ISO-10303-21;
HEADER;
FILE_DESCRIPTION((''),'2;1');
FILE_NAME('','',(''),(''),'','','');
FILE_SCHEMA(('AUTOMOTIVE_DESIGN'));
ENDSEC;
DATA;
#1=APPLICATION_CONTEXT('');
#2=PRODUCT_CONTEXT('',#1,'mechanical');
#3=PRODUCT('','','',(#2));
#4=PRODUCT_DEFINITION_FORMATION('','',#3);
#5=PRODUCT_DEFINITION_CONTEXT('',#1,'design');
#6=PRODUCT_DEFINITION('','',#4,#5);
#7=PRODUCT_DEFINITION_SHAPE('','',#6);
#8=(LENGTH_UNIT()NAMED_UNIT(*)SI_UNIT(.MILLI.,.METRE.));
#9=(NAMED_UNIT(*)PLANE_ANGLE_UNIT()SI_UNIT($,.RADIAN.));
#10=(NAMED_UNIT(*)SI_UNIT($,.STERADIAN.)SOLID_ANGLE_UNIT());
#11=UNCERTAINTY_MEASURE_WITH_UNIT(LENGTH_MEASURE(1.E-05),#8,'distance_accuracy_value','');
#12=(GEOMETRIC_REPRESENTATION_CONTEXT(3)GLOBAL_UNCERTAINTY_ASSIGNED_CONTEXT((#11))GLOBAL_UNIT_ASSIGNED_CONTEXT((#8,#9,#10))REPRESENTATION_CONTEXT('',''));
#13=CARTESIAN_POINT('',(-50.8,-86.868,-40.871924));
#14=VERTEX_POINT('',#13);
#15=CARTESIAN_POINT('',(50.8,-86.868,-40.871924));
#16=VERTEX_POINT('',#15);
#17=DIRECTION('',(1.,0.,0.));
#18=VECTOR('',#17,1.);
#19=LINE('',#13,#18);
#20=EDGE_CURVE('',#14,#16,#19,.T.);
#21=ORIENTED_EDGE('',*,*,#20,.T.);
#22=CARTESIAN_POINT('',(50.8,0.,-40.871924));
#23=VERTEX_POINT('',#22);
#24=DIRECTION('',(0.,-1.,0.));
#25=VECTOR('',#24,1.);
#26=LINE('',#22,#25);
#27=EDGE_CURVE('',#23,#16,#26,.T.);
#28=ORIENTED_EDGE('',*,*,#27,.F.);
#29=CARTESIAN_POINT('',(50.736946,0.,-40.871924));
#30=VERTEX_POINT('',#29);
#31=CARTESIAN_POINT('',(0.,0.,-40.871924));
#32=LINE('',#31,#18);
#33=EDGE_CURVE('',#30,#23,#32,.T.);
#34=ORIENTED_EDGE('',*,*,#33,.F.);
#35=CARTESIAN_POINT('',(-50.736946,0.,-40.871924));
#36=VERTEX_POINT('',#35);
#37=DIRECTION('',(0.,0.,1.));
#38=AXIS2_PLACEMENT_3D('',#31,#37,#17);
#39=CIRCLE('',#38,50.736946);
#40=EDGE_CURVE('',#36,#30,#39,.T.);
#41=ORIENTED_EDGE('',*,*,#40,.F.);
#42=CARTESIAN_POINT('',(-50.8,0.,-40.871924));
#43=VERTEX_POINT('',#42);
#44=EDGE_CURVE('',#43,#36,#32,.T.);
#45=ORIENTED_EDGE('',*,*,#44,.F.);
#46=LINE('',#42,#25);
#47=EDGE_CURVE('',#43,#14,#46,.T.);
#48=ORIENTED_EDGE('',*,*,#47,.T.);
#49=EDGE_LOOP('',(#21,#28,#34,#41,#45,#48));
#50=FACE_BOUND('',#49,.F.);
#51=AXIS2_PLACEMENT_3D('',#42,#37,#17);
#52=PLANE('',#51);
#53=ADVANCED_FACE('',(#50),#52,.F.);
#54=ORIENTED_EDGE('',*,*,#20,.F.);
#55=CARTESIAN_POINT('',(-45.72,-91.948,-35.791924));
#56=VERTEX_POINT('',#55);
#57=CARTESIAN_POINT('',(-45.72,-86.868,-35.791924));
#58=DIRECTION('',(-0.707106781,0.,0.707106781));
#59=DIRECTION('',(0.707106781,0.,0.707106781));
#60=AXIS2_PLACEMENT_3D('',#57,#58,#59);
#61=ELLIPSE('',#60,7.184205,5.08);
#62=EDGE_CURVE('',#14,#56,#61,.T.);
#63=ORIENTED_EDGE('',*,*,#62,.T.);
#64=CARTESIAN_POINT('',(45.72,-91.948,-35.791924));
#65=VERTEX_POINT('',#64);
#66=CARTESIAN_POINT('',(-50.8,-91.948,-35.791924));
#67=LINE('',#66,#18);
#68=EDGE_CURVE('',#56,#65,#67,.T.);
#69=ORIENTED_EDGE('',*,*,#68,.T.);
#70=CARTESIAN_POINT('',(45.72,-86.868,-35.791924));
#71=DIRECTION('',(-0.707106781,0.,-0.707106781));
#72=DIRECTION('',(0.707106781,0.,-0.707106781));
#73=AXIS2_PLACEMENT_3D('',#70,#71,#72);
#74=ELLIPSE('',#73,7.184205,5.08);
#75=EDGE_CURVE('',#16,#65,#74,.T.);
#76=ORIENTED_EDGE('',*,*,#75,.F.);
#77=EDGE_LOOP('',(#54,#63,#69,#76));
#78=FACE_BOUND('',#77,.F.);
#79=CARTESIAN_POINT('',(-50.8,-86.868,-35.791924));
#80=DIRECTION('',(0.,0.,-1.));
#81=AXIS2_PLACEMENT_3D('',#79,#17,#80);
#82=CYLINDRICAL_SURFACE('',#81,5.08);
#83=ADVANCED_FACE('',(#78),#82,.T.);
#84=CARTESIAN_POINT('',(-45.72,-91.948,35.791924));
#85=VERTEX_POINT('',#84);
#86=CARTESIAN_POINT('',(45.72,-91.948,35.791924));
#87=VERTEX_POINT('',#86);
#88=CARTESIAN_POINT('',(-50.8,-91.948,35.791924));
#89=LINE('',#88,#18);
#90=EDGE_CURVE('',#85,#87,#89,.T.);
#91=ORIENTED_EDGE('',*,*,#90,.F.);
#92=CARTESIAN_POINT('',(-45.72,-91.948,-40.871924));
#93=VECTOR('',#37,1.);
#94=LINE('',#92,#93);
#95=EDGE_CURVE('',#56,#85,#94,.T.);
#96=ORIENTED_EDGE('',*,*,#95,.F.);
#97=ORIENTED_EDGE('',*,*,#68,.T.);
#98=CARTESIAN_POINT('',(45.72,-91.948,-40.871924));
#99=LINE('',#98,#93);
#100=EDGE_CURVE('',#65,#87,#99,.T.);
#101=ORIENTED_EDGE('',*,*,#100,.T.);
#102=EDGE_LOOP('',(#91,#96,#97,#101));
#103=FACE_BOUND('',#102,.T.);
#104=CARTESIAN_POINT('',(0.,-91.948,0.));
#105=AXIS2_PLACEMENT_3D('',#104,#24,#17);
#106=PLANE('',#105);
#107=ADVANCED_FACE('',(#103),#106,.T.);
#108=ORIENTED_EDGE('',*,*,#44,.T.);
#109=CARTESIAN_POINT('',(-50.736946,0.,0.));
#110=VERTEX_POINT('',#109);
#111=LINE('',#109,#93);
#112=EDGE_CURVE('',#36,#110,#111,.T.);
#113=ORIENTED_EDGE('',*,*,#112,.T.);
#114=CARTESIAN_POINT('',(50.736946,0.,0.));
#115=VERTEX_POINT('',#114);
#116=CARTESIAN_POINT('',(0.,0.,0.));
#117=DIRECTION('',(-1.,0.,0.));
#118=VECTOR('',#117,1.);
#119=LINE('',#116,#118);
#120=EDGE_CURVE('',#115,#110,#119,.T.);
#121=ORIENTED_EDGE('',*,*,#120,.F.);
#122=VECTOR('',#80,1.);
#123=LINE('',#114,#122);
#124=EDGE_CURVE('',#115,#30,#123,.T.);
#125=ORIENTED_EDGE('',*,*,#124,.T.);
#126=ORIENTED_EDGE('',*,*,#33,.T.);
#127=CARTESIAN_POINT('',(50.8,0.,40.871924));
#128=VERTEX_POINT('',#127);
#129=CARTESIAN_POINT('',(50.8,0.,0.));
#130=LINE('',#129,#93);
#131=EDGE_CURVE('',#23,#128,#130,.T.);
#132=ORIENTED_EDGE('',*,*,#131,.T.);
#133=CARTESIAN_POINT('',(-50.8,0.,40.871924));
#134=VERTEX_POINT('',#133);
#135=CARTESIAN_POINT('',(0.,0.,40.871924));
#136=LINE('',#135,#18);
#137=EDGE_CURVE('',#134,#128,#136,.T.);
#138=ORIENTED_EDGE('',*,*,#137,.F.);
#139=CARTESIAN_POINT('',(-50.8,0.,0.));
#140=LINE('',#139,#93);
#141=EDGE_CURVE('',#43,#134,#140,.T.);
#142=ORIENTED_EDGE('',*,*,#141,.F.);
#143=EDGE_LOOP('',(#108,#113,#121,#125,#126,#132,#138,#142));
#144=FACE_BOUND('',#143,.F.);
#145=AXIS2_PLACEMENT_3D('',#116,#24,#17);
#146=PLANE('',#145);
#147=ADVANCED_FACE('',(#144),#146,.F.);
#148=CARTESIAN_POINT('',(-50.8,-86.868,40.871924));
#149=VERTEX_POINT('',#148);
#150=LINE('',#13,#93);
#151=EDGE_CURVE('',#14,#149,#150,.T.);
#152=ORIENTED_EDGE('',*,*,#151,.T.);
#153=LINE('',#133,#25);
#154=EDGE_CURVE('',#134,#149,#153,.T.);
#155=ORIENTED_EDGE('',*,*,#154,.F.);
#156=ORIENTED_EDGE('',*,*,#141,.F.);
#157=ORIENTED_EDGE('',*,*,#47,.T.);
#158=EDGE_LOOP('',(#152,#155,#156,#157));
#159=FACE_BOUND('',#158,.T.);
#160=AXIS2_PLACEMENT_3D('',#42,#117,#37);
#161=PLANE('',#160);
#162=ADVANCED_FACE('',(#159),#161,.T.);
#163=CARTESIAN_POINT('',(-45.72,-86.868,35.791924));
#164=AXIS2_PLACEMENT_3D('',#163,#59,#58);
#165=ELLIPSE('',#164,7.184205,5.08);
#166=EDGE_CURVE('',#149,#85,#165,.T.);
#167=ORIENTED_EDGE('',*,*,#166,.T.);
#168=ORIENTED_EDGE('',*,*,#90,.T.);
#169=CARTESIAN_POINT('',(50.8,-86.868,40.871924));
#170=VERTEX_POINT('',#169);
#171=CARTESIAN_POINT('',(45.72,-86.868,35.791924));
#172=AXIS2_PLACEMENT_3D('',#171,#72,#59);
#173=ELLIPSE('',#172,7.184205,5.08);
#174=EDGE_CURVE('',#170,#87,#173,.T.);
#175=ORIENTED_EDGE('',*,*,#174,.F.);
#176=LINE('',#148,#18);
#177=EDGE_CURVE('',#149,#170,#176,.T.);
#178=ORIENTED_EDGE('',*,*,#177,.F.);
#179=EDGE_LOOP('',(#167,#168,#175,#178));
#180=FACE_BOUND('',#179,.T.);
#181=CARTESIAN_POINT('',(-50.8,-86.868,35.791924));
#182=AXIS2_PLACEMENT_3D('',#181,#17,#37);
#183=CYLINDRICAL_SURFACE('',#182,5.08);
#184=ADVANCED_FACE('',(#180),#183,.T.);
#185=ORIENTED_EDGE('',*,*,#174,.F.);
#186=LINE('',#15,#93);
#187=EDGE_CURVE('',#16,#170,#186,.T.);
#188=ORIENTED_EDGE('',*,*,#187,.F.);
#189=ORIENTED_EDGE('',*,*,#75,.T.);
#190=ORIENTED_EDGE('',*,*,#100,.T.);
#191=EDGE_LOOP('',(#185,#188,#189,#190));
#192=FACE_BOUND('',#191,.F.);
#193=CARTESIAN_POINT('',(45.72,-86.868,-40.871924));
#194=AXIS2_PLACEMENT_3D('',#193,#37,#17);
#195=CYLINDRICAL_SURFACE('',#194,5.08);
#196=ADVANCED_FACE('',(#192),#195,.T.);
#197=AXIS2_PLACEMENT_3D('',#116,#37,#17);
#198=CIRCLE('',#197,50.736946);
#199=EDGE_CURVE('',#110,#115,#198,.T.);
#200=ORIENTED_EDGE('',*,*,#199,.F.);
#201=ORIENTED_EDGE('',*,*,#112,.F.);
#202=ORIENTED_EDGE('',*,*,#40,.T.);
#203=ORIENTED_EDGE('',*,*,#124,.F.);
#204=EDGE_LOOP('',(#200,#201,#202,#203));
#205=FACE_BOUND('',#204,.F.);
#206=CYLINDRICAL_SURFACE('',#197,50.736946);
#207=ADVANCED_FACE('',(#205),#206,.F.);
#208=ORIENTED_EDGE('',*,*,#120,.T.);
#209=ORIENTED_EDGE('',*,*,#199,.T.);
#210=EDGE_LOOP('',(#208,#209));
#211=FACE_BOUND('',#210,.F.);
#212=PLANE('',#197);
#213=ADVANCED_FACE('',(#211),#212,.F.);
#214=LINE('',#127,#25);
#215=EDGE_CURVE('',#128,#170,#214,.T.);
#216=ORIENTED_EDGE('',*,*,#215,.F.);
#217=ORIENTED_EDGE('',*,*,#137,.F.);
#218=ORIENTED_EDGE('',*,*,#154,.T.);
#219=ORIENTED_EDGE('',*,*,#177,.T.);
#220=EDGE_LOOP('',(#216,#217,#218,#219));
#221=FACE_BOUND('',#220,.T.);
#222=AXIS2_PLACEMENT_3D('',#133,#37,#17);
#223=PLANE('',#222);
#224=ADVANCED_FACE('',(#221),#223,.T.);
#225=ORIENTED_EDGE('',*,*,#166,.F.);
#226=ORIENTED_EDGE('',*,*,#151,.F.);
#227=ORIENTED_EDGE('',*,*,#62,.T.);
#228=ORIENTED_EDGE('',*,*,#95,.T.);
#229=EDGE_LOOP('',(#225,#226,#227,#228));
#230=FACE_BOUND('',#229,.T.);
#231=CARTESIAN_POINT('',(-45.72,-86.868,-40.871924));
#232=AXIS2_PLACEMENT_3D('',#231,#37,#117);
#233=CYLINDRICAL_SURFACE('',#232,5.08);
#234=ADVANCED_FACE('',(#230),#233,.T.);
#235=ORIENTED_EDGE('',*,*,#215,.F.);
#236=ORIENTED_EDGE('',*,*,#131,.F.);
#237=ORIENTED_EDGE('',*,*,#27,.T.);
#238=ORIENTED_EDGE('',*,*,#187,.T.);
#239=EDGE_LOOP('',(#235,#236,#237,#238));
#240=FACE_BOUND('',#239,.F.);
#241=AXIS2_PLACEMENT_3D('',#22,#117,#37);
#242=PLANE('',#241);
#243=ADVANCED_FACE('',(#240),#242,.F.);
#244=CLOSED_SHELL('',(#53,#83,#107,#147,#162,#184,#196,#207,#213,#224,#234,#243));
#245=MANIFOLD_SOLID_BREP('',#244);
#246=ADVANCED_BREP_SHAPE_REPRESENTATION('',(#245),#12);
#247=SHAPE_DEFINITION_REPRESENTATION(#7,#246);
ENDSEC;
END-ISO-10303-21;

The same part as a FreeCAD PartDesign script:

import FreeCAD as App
import Part
import Sketcher
Q = App.Units.Quantity


def edges_at(feature, points):
    """Names of the edges that pass closest to the given points."""
    edges = feature.Shape.Edges
    near = lambda p: min(range(len(edges)), key=lambda i: edges[i].distToShape(Part.Vertex(*p))[0])
    return sorted({f"Edge{near(p) + 1}" for p in points})

doc = App.newDocument("Part")
body = doc.addObject("PartDesign::Body", "Body")

sketch1 = body.newObject("Sketcher::SketchObject", "Sketch")
sketch1.AttachmentSupport = (doc.getObject("XZ_Plane"), [""])
sketch1.MapMode = "FlatFace"
sketch1.addGeometry(Part.LineSegment(App.Vector(-51, 41, 0), App.Vector(-51, -41, 0)), False)
sketch1.addGeometry(Part.LineSegment(App.Vector(-51, -41, 0), App.Vector(51, -41, 0)), False)
sketch1.addGeometry(Part.LineSegment(App.Vector(51, -41, 0), App.Vector(51, 41, 0)), False)
sketch1.addGeometry(Part.LineSegment(App.Vector(51, 41, 0), App.Vector(-51, 41, 0)), False)
sketch1.addConstraint(Sketcher.Constraint("Coincident", 0, 2, 1, 1))
sketch1.addConstraint(Sketcher.Constraint("Coincident", 1, 2, 2, 1))
sketch1.addConstraint(Sketcher.Constraint("Coincident", 2, 2, 3, 1))
sketch1.addConstraint(Sketcher.Constraint("Coincident", 3, 2, 0, 1))
sketch1.addConstraint(Sketcher.Constraint("Vertical", 0))
sketch1.addConstraint(Sketcher.Constraint("Horizontal", 1))
sketch1.addConstraint(Sketcher.Constraint("Vertical", 2))
sketch1.addConstraint(Sketcher.Constraint("Horizontal", 3))
sketch1.addConstraint(Sketcher.Constraint("Symmetric", 0, 2, 2, 2, -1, 1))
sketch1.addConstraint(Sketcher.Constraint("DistanceX", 1, 1, 1, 2, Q("4 in")))
sketch1.addConstraint(Sketcher.Constraint("DistanceY", 0, 2, 0, 1, 81.743848))
pad1 = body.newObject("PartDesign::Pad", "Pad")
pad1.Profile = sketch1
pad1.Length = Q("3.62 in")
doc.recompute()

fillet = body.newObject("PartDesign::Fillet", "Fillet")
fillet.Base = (pad1, edges_at(pad1, [
    (-50.8, -91.948, 0),
    (0, -91.948, -40.872),
    (50.8, -91.948, 0),
    (0, -91.948, 40.872),
]))
fillet.Radius = Q("0.2 in")

sketch2 = body.newObject("Sketcher::SketchObject", "Sketch001")
sketch2.AttachmentSupport = (doc.getObject("XY_Plane"), [""])
sketch2.MapMode = "FlatFace"
sketch2.addGeometry(Part.Circle(App.Vector(0, 0, 0), App.Vector(0, 0, 1), 51), False)
sketch2.addConstraint(Sketcher.Constraint("Coincident", 0, 3, -1, 1))
sketch2.addConstraint(Sketcher.Constraint("Diameter", 0, 101.473892))
pocket1 = body.newObject("PartDesign::Pocket", "Pocket")
pocket1.Profile = sketch2
pocket1.Type = "ThroughAll"

doc.recompute()
